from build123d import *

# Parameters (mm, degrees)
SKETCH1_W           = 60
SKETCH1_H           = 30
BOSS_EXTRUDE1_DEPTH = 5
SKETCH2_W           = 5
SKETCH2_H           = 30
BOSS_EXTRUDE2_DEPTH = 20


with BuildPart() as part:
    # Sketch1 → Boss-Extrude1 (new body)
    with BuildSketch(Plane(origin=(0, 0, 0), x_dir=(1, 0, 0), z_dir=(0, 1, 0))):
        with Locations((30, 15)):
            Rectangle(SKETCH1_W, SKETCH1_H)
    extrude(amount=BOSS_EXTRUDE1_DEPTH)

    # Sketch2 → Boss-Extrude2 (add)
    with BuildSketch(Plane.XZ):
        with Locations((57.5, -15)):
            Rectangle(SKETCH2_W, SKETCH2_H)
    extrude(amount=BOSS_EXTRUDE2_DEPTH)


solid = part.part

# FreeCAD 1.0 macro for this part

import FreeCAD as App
import Part
import Sketcher
Q = App.Units.Quantity

doc = App.newDocument("Part")
body = doc.addObject("PartDesign::Body", "Body")

# Sketch on XZ plane
sketch1 = body.newObject("Sketcher::SketchObject", "Sketch")
sketch1.AttachmentSupport = (doc.getObject("XZ_Plane"), [""])
sketch1.MapMode = "FlatFace"
sketch1.addGeometry([
    Part.LineSegment(App.Vector(0, -30, 0), App.Vector(0, 0, 0)),
    Part.LineSegment(App.Vector(0, 0, 0), App.Vector(60, 0, 0)),
    Part.LineSegment(App.Vector(60, 0, 0), App.Vector(60, -30, 0)),
    Part.LineSegment(App.Vector(60, -30, 0), App.Vector(0, -30, 0)),
], False)
sketch1.addConstraint([
    Sketcher.Constraint("Coincident", 0, 2, 1, 1),
    Sketcher.Constraint("Coincident", 1, 2, 2, 1),
    Sketcher.Constraint("Coincident", 2, 2, 3, 1),
    Sketcher.Constraint("Coincident", 3, 2, 0, 1),
    Sketcher.Constraint("Vertical", 0),
    Sketcher.Constraint("Horizontal", 1),
    Sketcher.Constraint("Vertical", 2),
    Sketcher.Constraint("Horizontal", 3),
    Sketcher.Constraint("Coincident", 0, 2, -1, 1),
    Sketcher.Constraint("DistanceX", 1, 1, 1, 2, Q("60 mm")),
    Sketcher.Constraint("DistanceY", 0, 1, 0, 2, Q("30 mm")),
])
pad1 = body.newObject("PartDesign::Pad", "Pad")
pad1.Profile = sketch1
pad1.Length = 5
pad1.Reversed = True

# Sketch on XZ plane
sketch2 = body.newObject("Sketcher::SketchObject", "Sketch001")
sketch2.AttachmentSupport = (doc.getObject("XZ_Plane"), [""])
sketch2.MapMode = "FlatFace"
sketch2.addGeometry([
    Part.LineSegment(App.Vector(55, 0, 0), App.Vector(55, -30, 0)),
    Part.LineSegment(App.Vector(55, -30, 0), App.Vector(60, -30, 0)),
    Part.LineSegment(App.Vector(60, -30, 0), App.Vector(60, 0, 0)),
    Part.LineSegment(App.Vector(60, 0, 0), App.Vector(55, 0, 0)),
], False)
sketch2.addConstraint([
    Sketcher.Constraint("Coincident", 0, 2, 1, 1),
    Sketcher.Constraint("Coincident", 1, 2, 2, 1),
    Sketcher.Constraint("Coincident", 2, 2, 3, 1),
    Sketcher.Constraint("Coincident", 3, 2, 0, 1),
    Sketcher.Constraint("Vertical", 0),
    Sketcher.Constraint("Horizontal", 1),
    Sketcher.Constraint("Vertical", 2),
    Sketcher.Constraint("Horizontal", 3),
    Sketcher.Constraint("PointOnObject", 2, 2, -1),
    Sketcher.Constraint("DistanceX", 1, 1, 1, 2, Q("5 mm")),
    Sketcher.Constraint("DistanceY", 0, 2, 0, 1, Q("30 mm")),
    Sketcher.Constraint("DistanceX", -1, 1, 0, 2, Q("55 mm")),
])
pad2 = body.newObject("PartDesign::Pad", "Pad001")
pad2.Profile = sketch2
pad2.Length = 20

doc.recompute()
